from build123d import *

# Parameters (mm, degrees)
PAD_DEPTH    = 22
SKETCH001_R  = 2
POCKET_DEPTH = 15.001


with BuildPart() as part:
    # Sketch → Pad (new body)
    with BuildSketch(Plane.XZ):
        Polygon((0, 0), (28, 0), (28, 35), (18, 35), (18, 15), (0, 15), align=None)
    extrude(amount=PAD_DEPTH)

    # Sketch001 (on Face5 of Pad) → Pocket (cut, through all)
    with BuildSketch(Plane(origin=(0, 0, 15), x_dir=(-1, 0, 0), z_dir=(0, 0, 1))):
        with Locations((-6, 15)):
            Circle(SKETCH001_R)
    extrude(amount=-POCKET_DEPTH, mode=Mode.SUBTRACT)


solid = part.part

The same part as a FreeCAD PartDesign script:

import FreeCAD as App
import Part
import Sketcher
from FreeCAD import Vector

doc = App.newDocument("Part")
body = doc.addObject("PartDesign::Body", "Body")

# Sketch on XZ plane
sketch1 = body.newObject("Sketcher::SketchObject", "Sketch")
sketch1.AttachmentSupport = (doc.getObject("XZ_Plane"), [""])
sketch1.MapMode = "FlatFace"
sketch1.addGeometry([
    Part.LineSegment(Vector(0, 0, 0), Vector(28, 0, 0)),  # 0
    Part.LineSegment(Vector(28, 0, 0), Vector(28, 35, 0)),  # 1
    Part.LineSegment(Vector(28, 35, 0), Vector(18, 35, 0)),  # 2
    Part.LineSegment(Vector(18, 35, 0), Vector(18, 15, 0)),  # 3
    Part.LineSegment(Vector(18, 15, 0), Vector(0, 15, 0)),  # 4
    Part.LineSegment(Vector(0, 15, 0), Vector(0, 0, 0)),  # 5
], False)
sketch1.addConstraint([
    Sketcher.Constraint("Coincident", 0, 2, 1, 1),
    Sketcher.Constraint("Coincident", 1, 2, 2, 1),
    Sketcher.Constraint("Coincident", 2, 2, 3, 1),
    Sketcher.Constraint("Coincident", 3, 2, 4, 1),
    Sketcher.Constraint("Coincident", 4, 2, 5, 1),
    Sketcher.Constraint("Coincident", 5, 2, 0, 1),
    Sketcher.Constraint("Horizontal", 0),
    Sketcher.Constraint("Vertical", 1),
    Sketcher.Constraint("Horizontal", 2),
    Sketcher.Constraint("Vertical", 3),
    Sketcher.Constraint("Horizontal", 4),
    Sketcher.Constraint("Vertical", 5),
    Sketcher.Constraint("Coincident", 5, 2, -1, 1),
    Sketcher.Constraint("DistanceX", 0, 1, 0, 2, 28.0),
    Sketcher.Constraint("DistanceX", 2, 2, 2, 1, 10.0),
    Sketcher.Constraint("DistanceY", 1, 1, 1, 2, 35.0),
    Sketcher.Constraint("DistanceY", 3, 2, 3, 1, 20.0),
])
pad1 = body.newObject("PartDesign::Pad", "Pad")
pad1.Profile = sketch1
pad1.Length = 22

# Sketch on XY plane
sketch2 = body.newObject("Sketcher::SketchObject", "Sketch001")
sketch2.AttachmentSupport = (doc.getObject("XY_Plane"), [""])
sketch2.MapMode = "FlatFace"
sketch2.AttachmentOffset = App.Placement(Vector(0, 0, 15), App.Rotation())
sketch2.addGeometry(Part.Circle(Vector(6, -15, 0), Vector(0, 0, 1), 2), False)
sketch2.addConstraint([
    Sketcher.Constraint("Diameter", 0, 4.0),
    Sketcher.Constraint("DistanceX", -1, 1, 0, 3, 6.0),
    Sketcher.Constraint("DistanceY", 0, 3, -1, 1, 15.0),
])
pocket1 = body.newObject("PartDesign::Pocket", "Pocket")
pocket1.Profile = sketch2
pocket1.Type = "ThroughAll"

doc.recompute()
